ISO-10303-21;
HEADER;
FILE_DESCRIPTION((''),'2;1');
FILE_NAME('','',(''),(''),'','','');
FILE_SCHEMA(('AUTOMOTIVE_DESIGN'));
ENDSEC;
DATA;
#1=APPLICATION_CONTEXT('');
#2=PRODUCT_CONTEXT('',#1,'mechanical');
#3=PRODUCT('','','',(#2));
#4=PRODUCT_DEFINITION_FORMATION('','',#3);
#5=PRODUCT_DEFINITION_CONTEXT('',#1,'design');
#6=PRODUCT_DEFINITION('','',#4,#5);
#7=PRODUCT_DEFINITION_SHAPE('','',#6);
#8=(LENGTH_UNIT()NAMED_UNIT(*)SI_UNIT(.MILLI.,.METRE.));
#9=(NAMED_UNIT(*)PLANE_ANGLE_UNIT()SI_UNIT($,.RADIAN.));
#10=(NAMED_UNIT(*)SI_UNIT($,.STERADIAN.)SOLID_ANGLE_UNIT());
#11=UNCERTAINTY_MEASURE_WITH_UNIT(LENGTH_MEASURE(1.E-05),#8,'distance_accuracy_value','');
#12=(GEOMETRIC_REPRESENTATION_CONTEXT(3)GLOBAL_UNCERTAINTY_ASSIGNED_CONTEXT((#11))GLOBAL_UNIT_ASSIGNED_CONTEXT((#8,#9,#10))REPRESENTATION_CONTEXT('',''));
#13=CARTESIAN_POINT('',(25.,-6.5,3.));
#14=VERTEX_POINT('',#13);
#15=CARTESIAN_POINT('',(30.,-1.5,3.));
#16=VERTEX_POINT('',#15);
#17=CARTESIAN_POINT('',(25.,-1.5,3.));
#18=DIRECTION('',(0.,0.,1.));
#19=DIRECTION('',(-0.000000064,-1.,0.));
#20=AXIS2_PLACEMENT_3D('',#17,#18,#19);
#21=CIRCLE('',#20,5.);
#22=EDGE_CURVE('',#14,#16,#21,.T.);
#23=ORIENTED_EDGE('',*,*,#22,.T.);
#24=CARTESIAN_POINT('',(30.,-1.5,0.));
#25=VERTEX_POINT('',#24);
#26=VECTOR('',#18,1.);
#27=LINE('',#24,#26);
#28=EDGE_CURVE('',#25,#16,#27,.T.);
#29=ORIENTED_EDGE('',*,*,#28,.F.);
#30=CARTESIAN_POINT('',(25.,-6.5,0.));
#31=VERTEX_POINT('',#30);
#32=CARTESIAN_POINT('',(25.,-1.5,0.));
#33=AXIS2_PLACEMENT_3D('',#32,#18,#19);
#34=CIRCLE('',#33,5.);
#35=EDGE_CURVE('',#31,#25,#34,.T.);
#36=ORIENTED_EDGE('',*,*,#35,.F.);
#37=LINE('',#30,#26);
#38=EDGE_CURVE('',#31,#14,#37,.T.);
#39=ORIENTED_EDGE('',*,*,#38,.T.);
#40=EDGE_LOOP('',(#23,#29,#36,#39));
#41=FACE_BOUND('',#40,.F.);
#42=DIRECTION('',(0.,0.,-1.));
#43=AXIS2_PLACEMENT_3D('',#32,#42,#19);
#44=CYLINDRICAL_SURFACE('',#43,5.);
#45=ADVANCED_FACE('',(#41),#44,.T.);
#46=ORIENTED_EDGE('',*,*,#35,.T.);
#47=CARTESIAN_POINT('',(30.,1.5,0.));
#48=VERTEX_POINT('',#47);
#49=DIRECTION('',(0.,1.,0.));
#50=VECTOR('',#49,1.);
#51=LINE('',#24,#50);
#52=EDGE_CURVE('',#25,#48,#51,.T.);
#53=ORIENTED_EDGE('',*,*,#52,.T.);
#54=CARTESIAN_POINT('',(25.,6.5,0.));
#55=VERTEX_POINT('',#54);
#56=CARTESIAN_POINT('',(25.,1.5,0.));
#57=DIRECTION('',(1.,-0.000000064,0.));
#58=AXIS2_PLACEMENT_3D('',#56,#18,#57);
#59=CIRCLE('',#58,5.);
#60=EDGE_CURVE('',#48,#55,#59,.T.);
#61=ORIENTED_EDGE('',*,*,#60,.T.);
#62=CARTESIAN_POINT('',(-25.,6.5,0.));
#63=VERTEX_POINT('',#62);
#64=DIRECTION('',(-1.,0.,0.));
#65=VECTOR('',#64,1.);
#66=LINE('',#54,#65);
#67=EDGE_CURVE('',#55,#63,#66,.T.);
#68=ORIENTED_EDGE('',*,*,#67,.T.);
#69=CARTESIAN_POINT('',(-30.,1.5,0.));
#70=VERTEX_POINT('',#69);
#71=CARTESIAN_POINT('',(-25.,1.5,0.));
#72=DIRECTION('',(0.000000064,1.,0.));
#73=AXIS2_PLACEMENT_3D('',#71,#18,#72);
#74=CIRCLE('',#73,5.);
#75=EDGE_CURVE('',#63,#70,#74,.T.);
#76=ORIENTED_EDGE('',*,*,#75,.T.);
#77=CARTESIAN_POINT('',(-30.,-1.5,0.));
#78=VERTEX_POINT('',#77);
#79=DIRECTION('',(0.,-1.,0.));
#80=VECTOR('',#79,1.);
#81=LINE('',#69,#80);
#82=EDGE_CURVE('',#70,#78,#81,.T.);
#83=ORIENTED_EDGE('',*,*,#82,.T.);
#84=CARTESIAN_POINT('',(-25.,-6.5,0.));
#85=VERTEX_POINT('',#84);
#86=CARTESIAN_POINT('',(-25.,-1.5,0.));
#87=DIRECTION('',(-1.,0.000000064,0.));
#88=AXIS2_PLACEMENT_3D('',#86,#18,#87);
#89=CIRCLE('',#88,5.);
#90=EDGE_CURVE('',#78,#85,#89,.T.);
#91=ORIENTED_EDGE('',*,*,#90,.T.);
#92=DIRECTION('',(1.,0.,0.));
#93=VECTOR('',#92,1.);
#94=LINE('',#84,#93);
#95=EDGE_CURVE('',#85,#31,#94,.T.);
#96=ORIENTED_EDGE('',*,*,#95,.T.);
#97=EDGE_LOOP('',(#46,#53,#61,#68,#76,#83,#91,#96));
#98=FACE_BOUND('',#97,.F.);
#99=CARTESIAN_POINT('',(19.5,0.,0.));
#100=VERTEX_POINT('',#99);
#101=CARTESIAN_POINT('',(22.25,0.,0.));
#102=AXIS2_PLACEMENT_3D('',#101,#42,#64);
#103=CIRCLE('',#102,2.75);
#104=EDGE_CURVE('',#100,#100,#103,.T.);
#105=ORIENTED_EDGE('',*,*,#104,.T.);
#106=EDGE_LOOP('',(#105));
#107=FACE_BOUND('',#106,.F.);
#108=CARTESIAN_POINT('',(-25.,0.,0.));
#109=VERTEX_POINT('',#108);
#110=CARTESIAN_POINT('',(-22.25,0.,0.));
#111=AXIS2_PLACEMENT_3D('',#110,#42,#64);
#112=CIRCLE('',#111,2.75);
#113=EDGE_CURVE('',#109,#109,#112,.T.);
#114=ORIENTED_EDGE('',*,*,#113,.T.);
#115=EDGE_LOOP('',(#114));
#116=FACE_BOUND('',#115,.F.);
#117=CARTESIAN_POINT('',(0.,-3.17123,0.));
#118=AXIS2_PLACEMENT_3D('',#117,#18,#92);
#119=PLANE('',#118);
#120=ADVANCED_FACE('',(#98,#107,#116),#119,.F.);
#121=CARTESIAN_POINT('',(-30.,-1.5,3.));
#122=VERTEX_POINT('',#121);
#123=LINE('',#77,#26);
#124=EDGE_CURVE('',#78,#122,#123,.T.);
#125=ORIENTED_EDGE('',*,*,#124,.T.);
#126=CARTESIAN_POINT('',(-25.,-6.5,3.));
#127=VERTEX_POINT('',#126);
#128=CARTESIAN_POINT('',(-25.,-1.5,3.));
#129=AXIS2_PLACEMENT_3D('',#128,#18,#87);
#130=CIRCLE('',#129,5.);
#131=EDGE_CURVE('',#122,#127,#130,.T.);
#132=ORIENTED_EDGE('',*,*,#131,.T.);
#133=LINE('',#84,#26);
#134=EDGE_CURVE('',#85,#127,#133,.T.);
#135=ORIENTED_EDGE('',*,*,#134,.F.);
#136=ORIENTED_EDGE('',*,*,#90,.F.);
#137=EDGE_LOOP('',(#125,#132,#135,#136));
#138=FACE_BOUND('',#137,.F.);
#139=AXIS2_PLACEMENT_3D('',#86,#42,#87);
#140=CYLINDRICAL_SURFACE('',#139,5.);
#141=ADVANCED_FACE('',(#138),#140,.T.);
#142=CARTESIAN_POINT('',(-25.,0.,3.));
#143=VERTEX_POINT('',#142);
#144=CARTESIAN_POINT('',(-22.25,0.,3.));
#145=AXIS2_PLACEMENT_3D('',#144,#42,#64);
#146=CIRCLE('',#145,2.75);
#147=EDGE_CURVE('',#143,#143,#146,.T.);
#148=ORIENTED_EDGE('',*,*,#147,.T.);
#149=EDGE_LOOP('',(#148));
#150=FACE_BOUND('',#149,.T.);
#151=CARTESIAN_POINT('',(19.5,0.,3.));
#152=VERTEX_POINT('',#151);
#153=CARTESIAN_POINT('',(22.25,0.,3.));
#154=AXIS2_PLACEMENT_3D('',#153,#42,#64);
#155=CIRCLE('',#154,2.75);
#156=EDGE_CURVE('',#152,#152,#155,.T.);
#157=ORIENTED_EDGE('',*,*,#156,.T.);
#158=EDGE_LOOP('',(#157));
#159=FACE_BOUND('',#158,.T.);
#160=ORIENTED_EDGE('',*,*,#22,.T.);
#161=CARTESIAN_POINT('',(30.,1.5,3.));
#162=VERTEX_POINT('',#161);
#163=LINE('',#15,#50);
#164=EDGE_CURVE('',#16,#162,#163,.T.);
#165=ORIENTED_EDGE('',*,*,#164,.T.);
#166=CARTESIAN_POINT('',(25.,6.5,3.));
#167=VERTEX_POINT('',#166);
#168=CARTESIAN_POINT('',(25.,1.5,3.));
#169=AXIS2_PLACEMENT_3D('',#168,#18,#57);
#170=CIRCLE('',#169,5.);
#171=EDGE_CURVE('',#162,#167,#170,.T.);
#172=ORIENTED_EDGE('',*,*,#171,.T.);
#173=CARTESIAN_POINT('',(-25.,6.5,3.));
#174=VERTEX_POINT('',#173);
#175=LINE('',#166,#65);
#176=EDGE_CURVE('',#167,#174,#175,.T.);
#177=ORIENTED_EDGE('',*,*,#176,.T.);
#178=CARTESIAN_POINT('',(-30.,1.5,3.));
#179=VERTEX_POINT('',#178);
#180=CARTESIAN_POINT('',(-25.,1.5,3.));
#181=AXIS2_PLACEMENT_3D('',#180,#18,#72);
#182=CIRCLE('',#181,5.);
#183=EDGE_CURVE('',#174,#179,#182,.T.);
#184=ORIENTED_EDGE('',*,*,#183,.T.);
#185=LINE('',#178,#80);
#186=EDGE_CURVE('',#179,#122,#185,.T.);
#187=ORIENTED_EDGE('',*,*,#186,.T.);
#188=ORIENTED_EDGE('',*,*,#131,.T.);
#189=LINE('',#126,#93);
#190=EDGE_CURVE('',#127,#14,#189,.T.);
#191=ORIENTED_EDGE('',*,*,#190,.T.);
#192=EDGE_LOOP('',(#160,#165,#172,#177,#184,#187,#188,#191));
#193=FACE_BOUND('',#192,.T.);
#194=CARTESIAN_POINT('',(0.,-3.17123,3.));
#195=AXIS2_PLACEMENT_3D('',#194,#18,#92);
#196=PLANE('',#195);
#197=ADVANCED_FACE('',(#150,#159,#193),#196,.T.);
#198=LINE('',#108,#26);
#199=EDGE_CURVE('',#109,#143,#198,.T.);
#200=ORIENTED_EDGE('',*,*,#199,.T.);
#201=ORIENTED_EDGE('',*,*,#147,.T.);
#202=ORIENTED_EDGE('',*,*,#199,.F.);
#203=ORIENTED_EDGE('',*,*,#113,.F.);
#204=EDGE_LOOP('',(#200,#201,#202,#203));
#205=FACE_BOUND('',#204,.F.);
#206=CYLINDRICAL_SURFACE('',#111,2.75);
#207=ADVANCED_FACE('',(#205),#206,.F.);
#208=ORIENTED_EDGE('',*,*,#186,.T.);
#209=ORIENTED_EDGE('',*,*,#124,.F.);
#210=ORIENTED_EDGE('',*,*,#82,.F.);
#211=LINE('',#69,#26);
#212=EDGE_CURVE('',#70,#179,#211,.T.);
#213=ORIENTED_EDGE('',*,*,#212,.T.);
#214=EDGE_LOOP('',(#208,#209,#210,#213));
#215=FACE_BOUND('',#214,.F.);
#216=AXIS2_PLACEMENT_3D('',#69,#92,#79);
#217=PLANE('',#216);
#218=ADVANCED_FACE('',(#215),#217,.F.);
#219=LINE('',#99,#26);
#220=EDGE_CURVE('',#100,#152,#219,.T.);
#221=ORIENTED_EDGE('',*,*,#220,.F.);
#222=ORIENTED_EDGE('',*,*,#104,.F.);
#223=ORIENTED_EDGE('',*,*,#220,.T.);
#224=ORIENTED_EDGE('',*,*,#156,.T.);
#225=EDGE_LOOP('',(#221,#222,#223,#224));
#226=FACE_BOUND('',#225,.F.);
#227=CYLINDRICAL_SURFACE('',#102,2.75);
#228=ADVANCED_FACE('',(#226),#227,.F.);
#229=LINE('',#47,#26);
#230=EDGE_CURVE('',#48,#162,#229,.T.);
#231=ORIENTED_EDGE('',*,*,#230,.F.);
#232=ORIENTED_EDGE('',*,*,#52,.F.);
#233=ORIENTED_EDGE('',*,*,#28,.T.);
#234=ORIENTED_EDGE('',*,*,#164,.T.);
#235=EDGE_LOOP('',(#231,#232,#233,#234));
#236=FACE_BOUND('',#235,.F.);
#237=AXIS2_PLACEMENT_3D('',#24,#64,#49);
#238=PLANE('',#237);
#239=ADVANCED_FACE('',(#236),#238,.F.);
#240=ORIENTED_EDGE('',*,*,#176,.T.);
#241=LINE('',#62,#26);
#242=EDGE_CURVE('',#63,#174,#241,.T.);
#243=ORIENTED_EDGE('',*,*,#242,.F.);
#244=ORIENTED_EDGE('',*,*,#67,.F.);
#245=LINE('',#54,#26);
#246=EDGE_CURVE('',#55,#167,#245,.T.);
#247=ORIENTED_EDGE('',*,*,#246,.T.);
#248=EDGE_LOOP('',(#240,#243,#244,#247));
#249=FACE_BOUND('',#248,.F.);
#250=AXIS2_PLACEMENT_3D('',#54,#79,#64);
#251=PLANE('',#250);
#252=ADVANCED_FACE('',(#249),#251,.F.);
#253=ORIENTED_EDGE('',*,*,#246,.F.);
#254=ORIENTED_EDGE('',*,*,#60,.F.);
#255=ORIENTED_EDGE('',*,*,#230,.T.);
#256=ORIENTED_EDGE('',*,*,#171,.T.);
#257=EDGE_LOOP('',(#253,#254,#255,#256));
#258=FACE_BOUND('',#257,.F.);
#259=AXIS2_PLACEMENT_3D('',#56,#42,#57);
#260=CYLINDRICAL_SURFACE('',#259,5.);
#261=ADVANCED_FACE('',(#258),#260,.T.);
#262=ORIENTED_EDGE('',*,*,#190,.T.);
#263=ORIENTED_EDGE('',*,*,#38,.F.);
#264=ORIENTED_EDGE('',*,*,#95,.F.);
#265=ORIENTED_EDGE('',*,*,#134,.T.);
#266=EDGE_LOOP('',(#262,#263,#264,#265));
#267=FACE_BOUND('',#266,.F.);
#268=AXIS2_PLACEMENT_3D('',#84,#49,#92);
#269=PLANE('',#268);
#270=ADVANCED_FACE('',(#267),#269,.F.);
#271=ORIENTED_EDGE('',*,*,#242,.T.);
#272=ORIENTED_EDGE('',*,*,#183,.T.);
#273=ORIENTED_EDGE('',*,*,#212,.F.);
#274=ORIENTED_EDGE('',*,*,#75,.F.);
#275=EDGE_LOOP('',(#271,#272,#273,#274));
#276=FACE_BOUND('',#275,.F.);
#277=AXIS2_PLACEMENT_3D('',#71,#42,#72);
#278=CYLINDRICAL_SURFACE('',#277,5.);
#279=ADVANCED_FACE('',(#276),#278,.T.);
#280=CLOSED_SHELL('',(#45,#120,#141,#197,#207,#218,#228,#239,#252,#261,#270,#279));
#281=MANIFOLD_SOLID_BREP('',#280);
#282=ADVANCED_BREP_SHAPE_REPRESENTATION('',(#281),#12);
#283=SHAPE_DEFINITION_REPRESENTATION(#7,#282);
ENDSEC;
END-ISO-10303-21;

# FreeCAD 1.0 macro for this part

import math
import FreeCAD as App
import Part
import Sketcher
Q = App.Units.Quantity

doc = App.newDocument("Part")
params = doc.addObject("Spreadsheet::Sheet", "Params")
for row, (alias, value) in enumerate([
    ("sketch1_radius", "5 mm"),
    ("sketch1_diameter", "5.5 mm"),
    ("sketch1_width", "50 mm"),
    ("sketch1_height", "3 mm"),
    ("pad1_length", "3 mm"),
], start=1):
    params.set(f"A{row}", alias)
    params.set(f"B{row}", "=" + value)
    params.setAlias(f"B{row}", alias)

body = doc.addObject("PartDesign::Body", "Body")

# Sketch on XY plane
sketch1 = body.newObject("Sketcher::SketchObject", "Sketch")
sketch1.AttachmentSupport = (doc.getObject("XY_Plane"), [""])
sketch1.MapMode = "FlatFace"
sketch1.addGeometry([
    Part.LineSegment(App.Vector(-25, -6.5, 0), App.Vector(25, -6.5, 0)),  # 0
    Part.ArcOfCircle(Part.Circle(App.Vector(25, -1.5, 0), App.Vector(0, 0, 1), 5), math.radians(-90.000004), math.radians(0.000004)),  # 1
    Part.LineSegment(App.Vector(30, -1.5, 0), App.Vector(30, 1.5, 0)),  # 2
    Part.ArcOfCircle(Part.Circle(App.Vector(25, 1.5, 0), App.Vector(0, 0, 1), 5), math.radians(-0.000004), math.radians(90.000004)),  # 3
    Part.LineSegment(App.Vector(25, 6.5, 0), App.Vector(-25, 6.5, 0)),  # 4
    Part.ArcOfCircle(Part.Circle(App.Vector(-25, 1.5, 0), App.Vector(0, 0, 1), 5), math.radians(89.999996), math.radians(180.000004)),  # 5
    Part.LineSegment(App.Vector(-30, 1.5, 0), App.Vector(-30, -1.5, 0)),  # 6
    Part.ArcOfCircle(Part.Circle(App.Vector(-25, -1.5, 0), App.Vector(0, 0, 1), 5), math.radians(179.999996), math.radians(270.000004)),  # 7
    Part.Circle(App.Vector(22.25, 0, 0), App.Vector(0, 0, 1), 2.75),  # 8
    Part.Circle(App.Vector(-22.25, 0, 0), App.Vector(0, 0, 1), 2.75),  # 9
], False)
sketch1.addConstraint([
    Sketcher.Constraint("Tangent", 0, 2, 1, 1),
    Sketcher.Constraint("Tangent", 1, 2, 2, 1),
    Sketcher.Constraint("Tangent", 2, 2, 3, 1),
    Sketcher.Constraint("Tangent", 3, 2, 4, 1),
    Sketcher.Constraint("Tangent", 4, 2, 5, 1),
    Sketcher.Constraint("Tangent", 5, 2, 6, 1),
    Sketcher.Constraint("Tangent", 6, 2, 7, 1),
    Sketcher.Constraint("Tangent", 7, 2, 0, 1),
    Sketcher.Constraint("Horizontal", 0),
    Sketcher.Constraint("Vertical", 2),
    Sketcher.Constraint("Horizontal", 4),
    Sketcher.Constraint("Vertical", 6),
    Sketcher.Constraint("Equal", 1, 3),
    Sketcher.Constraint("Equal", 3, 5),
    Sketcher.Constraint("Equal", 5, 7),
    Sketcher.Constraint("Equal", 8, 9),
    Sketcher.Constraint("Symmetric", 1, 3, 5, 3, -1, 1),
    Sketcher.Constraint("Symmetric", 8, 3, 9, 3, -1, 1),
    Sketcher.Constraint("PointOnObject", 8, 3, -1),
    Sketcher.Constraint("Radius", 1, Q("5 mm")),
    Sketcher.Constraint("Diameter", 8, Q("5.5 mm")),
    Sketcher.Constraint("DistanceX", 0, 1, 0, 2, Q("50 mm")),
    Sketcher.Constraint("DistanceY", 2, 1, 2, 2, Q("3 mm")),
    Sketcher.Constraint("DistanceX", 9, 3, 8, 3, Q("44.5 mm")),
])
sketch1.setExpression("Constraints[19]", "Params.sketch1_radius")
sketch1.setExpression("Constraints[20]", "Params.sketch1_diameter")
sketch1.setExpression("Constraints[21]", "Params.sketch1_width")
sketch1.setExpression("Constraints[22]", "Params.sketch1_height")
pad1 = body.newObject("PartDesign::Pad", "Pad")
pad1.Profile = sketch1
pad1.setExpression("Length", "Params.pad1_length")

doc.recompute()
